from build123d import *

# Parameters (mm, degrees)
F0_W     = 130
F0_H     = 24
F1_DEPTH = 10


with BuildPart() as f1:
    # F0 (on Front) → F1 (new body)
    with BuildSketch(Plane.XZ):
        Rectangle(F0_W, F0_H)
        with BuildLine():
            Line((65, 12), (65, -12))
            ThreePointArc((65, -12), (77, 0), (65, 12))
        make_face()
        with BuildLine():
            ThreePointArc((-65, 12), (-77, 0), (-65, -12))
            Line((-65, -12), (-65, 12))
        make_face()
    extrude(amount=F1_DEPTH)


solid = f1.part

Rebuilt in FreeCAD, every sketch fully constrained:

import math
import FreeCAD as App
import Part
import Sketcher
from FreeCAD import Vector
Q = App.Units.Quantity

doc = App.newDocument("Part")
params = doc.addObject("Spreadsheet::Sheet", "Params")
for row, (alias, value) in enumerate([
    ("sketch1_radius", "12 mm"),
    ("sketch1_width", "130 mm"),
    ("pad1_length", "10 mm"),
], start=1):
    params.set(f"A{row}", alias)
    params.set(f"B{row}", "=" + value)
    params.setAlias(f"B{row}", alias)

body = doc.addObject("PartDesign::Body", "Body")

# Sketch on XZ plane
sketch1 = doc.addObject("Sketcher::SketchObject", "Sketch")
body.addObject(sketch1)
sketch1.AttachmentSupport = (doc.XZ_Plane, [""])
sketch1.MapMode = "FlatFace"
sketch1.addGeometry([
    Part.LineSegment(Vector(-65, -12, 0), Vector(65, -12, 0)),
    Part.ArcOfCircle(Part.Circle(Vector(65, 0, 0), Vector(0, 0, 1), 12), math.radians(-90), math.radians(90)),
    Part.LineSegment(Vector(65, 12, 0), Vector(-65, 12, 0)),
    Part.ArcOfCircle(Part.Circle(Vector(-65, 0, 0), Vector(0, 0, 1), 12), math.radians(90), math.radians(270)),
], False)
sketch1.addConstraint([
    Sketcher.Constraint("Tangent", 0, 2, 1, 1),
    Sketcher.Constraint("Tangent", 1, 2, 2, 1),
    Sketcher.Constraint("Tangent", 2, 2, 3, 1),
    Sketcher.Constraint("Tangent", 3, 2, 0, 1),
    Sketcher.Constraint("Horizontal", 0),
    Sketcher.Constraint("Horizontal", 2),
    Sketcher.Constraint("Symmetric", 1, 3, 3, 3, -1, 1),
    Sketcher.Constraint("Radius", 1, Q("12 mm")),
    Sketcher.Constraint("DistanceX", 0, 1, 0, 2, Q("130 mm")),
])
sketch1.setExpression("Constraints[7]", "Params.sketch1_radius")
sketch1.setExpression("Constraints[8]", "Params.sketch1_width")
pad1 = doc.addObject("PartDesign::Pad", "Pad")
body.addObject(pad1)
pad1.Profile = sketch1
pad1.setExpression("Length", "Params.pad1_length")

doc.recompute()
